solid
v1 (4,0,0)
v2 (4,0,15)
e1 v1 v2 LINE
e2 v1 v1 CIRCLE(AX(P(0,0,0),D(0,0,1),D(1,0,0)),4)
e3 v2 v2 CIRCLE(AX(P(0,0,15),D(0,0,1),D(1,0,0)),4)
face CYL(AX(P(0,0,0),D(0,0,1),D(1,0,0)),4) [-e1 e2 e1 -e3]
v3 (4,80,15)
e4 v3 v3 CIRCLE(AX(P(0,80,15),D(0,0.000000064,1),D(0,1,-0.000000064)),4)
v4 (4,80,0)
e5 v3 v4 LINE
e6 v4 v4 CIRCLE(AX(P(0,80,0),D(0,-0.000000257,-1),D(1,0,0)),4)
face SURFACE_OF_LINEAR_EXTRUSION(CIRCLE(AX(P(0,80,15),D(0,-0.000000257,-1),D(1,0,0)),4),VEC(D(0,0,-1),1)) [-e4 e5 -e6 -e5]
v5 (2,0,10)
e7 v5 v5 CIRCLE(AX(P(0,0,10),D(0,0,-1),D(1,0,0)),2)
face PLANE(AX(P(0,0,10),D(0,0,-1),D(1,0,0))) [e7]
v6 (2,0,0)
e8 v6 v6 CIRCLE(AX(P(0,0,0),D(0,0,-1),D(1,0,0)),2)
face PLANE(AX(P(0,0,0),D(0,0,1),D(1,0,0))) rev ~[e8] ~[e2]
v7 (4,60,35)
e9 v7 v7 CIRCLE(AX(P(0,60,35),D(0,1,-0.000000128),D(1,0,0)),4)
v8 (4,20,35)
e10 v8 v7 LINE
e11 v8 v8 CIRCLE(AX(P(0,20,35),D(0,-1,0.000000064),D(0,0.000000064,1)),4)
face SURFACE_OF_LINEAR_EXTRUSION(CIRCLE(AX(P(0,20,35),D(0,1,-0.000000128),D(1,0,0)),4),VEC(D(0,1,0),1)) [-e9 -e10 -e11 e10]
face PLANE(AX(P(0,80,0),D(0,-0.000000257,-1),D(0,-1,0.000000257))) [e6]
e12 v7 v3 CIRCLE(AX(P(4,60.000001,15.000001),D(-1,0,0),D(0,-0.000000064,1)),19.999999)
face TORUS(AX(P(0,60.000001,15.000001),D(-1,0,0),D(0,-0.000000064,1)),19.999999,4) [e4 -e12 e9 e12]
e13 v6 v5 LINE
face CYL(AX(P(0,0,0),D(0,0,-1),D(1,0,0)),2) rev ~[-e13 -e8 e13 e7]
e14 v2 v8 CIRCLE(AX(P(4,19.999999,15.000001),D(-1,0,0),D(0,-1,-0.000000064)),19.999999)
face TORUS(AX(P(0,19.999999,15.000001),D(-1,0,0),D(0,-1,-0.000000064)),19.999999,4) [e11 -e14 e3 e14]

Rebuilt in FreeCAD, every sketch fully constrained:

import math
import FreeCAD as App
import Part
import Sketcher

doc = App.newDocument("Part")
body = doc.addObject("PartDesign::Body", "Body")

# Sketch on XY plane
sketch1 = body.newObject("Sketcher::SketchObject", "Sketch")
sketch1.AttachmentSupport = (doc.getObject("XY_Plane"), [""])
sketch1.MapMode = "FlatFace"
sketch1.addGeometry(Part.Circle(App.Vector(0, 0, 0), App.Vector(0, 0, 1), 4), False)
sketch1.addConstraint([
    Sketcher.Constraint("Coincident", 0, 3, -1, 1),
    Sketcher.Constraint("Diameter", 0, 8.0),
])

# Sketch on YZ plane
sketch2 = body.newObject("Sketcher::SketchObject", "Sketch001")
sketch2.AttachmentSupport = (doc.getObject("YZ_Plane"), [""])
sketch2.MapMode = "FlatFace"
sketch2.addGeometry([
    Part.LineSegment(App.Vector(0, 0, 0), App.Vector(0, 15, 0)),  # 0
    Part.ArcOfCircle(Part.Circle(App.Vector(20, 15, 0), App.Vector(0, 0, 1), 20), math.radians(90), math.radians(180)),  # 1
    Part.LineSegment(App.Vector(20, 35, 0), App.Vector(60, 35, 0)),  # 2
    Part.ArcOfCircle(Part.Circle(App.Vector(60, 15, 0), App.Vector(0, 0, 1), 20), math.radians(0), math.radians(90)),  # 3
    Part.LineSegment(App.Vector(80, 15, 0), App.Vector(80, 0, 0)),  # 4
], False)
sketch2.addConstraint([
    Sketcher.Constraint("Tangent", 0, 2, 1, 2),
    Sketcher.Constraint("Tangent", 1, 1, 2, 1),
    Sketcher.Constraint("Tangent", 2, 2, 3, 2),
    Sketcher.Constraint("Tangent", 3, 1, 4, 1),
    Sketcher.Constraint("Vertical", 0),
    Sketcher.Constraint("Horizontal", 2),
    Sketcher.Constraint("Vertical", 4),
    Sketcher.Constraint("Coincident", 0, 1, -1, 1),
    Sketcher.Constraint("Equal", 1, 3),
    Sketcher.Constraint("PointOnObject", 4, 2, -1),
    Sketcher.Constraint("Radius", 1, 19.999999),
    Sketcher.Constraint("DistanceX", 2, 1, 2, 2, 40.0),
    Sketcher.Constraint("DistanceY", 0, 1, 0, 2, 15.0),
])
doc.recompute()

additivepipe = body.newObject("PartDesign::AdditivePipe", "AdditivePipe")
additivepipe.Profile = sketch1
additivepipe.Spine = (sketch2, ["Edge1", "Edge2", "Edge3", "Edge4", "Edge5"])

# Sketch on XY plane
sketch3 = body.newObject("Sketcher::SketchObject", "Sketch002")
sketch3.AttachmentSupport = (doc.getObject("XY_Plane"), [""])
sketch3.MapMode = "FlatFace"
sketch3.addGeometry([
    Part.Circle(App.Vector(0, 0, 0), App.Vector(0, 0, 1), 2),
    Part.Circle(App.Vector(0, 100, 0), App.Vector(0, 0, 1), 2),
], False)
sketch3.addConstraint([
    Sketcher.Constraint("Coincident", 0, 3, -1, 1),
    Sketcher.Constraint("Equal", 0, 1),
    Sketcher.Constraint("PointOnObject", 1, 3, -2),
    Sketcher.Constraint("Diameter", 0, 4.0),
    Sketcher.Constraint("DistanceY", -1, 1, 1, 3, 100.0),
])
pocket1 = body.newObject("PartDesign::Pocket", "Pocket")
pocket1.Profile = sketch3
pocket1.Length = 10
pocket1.Reversed = True

doc.recompute()
